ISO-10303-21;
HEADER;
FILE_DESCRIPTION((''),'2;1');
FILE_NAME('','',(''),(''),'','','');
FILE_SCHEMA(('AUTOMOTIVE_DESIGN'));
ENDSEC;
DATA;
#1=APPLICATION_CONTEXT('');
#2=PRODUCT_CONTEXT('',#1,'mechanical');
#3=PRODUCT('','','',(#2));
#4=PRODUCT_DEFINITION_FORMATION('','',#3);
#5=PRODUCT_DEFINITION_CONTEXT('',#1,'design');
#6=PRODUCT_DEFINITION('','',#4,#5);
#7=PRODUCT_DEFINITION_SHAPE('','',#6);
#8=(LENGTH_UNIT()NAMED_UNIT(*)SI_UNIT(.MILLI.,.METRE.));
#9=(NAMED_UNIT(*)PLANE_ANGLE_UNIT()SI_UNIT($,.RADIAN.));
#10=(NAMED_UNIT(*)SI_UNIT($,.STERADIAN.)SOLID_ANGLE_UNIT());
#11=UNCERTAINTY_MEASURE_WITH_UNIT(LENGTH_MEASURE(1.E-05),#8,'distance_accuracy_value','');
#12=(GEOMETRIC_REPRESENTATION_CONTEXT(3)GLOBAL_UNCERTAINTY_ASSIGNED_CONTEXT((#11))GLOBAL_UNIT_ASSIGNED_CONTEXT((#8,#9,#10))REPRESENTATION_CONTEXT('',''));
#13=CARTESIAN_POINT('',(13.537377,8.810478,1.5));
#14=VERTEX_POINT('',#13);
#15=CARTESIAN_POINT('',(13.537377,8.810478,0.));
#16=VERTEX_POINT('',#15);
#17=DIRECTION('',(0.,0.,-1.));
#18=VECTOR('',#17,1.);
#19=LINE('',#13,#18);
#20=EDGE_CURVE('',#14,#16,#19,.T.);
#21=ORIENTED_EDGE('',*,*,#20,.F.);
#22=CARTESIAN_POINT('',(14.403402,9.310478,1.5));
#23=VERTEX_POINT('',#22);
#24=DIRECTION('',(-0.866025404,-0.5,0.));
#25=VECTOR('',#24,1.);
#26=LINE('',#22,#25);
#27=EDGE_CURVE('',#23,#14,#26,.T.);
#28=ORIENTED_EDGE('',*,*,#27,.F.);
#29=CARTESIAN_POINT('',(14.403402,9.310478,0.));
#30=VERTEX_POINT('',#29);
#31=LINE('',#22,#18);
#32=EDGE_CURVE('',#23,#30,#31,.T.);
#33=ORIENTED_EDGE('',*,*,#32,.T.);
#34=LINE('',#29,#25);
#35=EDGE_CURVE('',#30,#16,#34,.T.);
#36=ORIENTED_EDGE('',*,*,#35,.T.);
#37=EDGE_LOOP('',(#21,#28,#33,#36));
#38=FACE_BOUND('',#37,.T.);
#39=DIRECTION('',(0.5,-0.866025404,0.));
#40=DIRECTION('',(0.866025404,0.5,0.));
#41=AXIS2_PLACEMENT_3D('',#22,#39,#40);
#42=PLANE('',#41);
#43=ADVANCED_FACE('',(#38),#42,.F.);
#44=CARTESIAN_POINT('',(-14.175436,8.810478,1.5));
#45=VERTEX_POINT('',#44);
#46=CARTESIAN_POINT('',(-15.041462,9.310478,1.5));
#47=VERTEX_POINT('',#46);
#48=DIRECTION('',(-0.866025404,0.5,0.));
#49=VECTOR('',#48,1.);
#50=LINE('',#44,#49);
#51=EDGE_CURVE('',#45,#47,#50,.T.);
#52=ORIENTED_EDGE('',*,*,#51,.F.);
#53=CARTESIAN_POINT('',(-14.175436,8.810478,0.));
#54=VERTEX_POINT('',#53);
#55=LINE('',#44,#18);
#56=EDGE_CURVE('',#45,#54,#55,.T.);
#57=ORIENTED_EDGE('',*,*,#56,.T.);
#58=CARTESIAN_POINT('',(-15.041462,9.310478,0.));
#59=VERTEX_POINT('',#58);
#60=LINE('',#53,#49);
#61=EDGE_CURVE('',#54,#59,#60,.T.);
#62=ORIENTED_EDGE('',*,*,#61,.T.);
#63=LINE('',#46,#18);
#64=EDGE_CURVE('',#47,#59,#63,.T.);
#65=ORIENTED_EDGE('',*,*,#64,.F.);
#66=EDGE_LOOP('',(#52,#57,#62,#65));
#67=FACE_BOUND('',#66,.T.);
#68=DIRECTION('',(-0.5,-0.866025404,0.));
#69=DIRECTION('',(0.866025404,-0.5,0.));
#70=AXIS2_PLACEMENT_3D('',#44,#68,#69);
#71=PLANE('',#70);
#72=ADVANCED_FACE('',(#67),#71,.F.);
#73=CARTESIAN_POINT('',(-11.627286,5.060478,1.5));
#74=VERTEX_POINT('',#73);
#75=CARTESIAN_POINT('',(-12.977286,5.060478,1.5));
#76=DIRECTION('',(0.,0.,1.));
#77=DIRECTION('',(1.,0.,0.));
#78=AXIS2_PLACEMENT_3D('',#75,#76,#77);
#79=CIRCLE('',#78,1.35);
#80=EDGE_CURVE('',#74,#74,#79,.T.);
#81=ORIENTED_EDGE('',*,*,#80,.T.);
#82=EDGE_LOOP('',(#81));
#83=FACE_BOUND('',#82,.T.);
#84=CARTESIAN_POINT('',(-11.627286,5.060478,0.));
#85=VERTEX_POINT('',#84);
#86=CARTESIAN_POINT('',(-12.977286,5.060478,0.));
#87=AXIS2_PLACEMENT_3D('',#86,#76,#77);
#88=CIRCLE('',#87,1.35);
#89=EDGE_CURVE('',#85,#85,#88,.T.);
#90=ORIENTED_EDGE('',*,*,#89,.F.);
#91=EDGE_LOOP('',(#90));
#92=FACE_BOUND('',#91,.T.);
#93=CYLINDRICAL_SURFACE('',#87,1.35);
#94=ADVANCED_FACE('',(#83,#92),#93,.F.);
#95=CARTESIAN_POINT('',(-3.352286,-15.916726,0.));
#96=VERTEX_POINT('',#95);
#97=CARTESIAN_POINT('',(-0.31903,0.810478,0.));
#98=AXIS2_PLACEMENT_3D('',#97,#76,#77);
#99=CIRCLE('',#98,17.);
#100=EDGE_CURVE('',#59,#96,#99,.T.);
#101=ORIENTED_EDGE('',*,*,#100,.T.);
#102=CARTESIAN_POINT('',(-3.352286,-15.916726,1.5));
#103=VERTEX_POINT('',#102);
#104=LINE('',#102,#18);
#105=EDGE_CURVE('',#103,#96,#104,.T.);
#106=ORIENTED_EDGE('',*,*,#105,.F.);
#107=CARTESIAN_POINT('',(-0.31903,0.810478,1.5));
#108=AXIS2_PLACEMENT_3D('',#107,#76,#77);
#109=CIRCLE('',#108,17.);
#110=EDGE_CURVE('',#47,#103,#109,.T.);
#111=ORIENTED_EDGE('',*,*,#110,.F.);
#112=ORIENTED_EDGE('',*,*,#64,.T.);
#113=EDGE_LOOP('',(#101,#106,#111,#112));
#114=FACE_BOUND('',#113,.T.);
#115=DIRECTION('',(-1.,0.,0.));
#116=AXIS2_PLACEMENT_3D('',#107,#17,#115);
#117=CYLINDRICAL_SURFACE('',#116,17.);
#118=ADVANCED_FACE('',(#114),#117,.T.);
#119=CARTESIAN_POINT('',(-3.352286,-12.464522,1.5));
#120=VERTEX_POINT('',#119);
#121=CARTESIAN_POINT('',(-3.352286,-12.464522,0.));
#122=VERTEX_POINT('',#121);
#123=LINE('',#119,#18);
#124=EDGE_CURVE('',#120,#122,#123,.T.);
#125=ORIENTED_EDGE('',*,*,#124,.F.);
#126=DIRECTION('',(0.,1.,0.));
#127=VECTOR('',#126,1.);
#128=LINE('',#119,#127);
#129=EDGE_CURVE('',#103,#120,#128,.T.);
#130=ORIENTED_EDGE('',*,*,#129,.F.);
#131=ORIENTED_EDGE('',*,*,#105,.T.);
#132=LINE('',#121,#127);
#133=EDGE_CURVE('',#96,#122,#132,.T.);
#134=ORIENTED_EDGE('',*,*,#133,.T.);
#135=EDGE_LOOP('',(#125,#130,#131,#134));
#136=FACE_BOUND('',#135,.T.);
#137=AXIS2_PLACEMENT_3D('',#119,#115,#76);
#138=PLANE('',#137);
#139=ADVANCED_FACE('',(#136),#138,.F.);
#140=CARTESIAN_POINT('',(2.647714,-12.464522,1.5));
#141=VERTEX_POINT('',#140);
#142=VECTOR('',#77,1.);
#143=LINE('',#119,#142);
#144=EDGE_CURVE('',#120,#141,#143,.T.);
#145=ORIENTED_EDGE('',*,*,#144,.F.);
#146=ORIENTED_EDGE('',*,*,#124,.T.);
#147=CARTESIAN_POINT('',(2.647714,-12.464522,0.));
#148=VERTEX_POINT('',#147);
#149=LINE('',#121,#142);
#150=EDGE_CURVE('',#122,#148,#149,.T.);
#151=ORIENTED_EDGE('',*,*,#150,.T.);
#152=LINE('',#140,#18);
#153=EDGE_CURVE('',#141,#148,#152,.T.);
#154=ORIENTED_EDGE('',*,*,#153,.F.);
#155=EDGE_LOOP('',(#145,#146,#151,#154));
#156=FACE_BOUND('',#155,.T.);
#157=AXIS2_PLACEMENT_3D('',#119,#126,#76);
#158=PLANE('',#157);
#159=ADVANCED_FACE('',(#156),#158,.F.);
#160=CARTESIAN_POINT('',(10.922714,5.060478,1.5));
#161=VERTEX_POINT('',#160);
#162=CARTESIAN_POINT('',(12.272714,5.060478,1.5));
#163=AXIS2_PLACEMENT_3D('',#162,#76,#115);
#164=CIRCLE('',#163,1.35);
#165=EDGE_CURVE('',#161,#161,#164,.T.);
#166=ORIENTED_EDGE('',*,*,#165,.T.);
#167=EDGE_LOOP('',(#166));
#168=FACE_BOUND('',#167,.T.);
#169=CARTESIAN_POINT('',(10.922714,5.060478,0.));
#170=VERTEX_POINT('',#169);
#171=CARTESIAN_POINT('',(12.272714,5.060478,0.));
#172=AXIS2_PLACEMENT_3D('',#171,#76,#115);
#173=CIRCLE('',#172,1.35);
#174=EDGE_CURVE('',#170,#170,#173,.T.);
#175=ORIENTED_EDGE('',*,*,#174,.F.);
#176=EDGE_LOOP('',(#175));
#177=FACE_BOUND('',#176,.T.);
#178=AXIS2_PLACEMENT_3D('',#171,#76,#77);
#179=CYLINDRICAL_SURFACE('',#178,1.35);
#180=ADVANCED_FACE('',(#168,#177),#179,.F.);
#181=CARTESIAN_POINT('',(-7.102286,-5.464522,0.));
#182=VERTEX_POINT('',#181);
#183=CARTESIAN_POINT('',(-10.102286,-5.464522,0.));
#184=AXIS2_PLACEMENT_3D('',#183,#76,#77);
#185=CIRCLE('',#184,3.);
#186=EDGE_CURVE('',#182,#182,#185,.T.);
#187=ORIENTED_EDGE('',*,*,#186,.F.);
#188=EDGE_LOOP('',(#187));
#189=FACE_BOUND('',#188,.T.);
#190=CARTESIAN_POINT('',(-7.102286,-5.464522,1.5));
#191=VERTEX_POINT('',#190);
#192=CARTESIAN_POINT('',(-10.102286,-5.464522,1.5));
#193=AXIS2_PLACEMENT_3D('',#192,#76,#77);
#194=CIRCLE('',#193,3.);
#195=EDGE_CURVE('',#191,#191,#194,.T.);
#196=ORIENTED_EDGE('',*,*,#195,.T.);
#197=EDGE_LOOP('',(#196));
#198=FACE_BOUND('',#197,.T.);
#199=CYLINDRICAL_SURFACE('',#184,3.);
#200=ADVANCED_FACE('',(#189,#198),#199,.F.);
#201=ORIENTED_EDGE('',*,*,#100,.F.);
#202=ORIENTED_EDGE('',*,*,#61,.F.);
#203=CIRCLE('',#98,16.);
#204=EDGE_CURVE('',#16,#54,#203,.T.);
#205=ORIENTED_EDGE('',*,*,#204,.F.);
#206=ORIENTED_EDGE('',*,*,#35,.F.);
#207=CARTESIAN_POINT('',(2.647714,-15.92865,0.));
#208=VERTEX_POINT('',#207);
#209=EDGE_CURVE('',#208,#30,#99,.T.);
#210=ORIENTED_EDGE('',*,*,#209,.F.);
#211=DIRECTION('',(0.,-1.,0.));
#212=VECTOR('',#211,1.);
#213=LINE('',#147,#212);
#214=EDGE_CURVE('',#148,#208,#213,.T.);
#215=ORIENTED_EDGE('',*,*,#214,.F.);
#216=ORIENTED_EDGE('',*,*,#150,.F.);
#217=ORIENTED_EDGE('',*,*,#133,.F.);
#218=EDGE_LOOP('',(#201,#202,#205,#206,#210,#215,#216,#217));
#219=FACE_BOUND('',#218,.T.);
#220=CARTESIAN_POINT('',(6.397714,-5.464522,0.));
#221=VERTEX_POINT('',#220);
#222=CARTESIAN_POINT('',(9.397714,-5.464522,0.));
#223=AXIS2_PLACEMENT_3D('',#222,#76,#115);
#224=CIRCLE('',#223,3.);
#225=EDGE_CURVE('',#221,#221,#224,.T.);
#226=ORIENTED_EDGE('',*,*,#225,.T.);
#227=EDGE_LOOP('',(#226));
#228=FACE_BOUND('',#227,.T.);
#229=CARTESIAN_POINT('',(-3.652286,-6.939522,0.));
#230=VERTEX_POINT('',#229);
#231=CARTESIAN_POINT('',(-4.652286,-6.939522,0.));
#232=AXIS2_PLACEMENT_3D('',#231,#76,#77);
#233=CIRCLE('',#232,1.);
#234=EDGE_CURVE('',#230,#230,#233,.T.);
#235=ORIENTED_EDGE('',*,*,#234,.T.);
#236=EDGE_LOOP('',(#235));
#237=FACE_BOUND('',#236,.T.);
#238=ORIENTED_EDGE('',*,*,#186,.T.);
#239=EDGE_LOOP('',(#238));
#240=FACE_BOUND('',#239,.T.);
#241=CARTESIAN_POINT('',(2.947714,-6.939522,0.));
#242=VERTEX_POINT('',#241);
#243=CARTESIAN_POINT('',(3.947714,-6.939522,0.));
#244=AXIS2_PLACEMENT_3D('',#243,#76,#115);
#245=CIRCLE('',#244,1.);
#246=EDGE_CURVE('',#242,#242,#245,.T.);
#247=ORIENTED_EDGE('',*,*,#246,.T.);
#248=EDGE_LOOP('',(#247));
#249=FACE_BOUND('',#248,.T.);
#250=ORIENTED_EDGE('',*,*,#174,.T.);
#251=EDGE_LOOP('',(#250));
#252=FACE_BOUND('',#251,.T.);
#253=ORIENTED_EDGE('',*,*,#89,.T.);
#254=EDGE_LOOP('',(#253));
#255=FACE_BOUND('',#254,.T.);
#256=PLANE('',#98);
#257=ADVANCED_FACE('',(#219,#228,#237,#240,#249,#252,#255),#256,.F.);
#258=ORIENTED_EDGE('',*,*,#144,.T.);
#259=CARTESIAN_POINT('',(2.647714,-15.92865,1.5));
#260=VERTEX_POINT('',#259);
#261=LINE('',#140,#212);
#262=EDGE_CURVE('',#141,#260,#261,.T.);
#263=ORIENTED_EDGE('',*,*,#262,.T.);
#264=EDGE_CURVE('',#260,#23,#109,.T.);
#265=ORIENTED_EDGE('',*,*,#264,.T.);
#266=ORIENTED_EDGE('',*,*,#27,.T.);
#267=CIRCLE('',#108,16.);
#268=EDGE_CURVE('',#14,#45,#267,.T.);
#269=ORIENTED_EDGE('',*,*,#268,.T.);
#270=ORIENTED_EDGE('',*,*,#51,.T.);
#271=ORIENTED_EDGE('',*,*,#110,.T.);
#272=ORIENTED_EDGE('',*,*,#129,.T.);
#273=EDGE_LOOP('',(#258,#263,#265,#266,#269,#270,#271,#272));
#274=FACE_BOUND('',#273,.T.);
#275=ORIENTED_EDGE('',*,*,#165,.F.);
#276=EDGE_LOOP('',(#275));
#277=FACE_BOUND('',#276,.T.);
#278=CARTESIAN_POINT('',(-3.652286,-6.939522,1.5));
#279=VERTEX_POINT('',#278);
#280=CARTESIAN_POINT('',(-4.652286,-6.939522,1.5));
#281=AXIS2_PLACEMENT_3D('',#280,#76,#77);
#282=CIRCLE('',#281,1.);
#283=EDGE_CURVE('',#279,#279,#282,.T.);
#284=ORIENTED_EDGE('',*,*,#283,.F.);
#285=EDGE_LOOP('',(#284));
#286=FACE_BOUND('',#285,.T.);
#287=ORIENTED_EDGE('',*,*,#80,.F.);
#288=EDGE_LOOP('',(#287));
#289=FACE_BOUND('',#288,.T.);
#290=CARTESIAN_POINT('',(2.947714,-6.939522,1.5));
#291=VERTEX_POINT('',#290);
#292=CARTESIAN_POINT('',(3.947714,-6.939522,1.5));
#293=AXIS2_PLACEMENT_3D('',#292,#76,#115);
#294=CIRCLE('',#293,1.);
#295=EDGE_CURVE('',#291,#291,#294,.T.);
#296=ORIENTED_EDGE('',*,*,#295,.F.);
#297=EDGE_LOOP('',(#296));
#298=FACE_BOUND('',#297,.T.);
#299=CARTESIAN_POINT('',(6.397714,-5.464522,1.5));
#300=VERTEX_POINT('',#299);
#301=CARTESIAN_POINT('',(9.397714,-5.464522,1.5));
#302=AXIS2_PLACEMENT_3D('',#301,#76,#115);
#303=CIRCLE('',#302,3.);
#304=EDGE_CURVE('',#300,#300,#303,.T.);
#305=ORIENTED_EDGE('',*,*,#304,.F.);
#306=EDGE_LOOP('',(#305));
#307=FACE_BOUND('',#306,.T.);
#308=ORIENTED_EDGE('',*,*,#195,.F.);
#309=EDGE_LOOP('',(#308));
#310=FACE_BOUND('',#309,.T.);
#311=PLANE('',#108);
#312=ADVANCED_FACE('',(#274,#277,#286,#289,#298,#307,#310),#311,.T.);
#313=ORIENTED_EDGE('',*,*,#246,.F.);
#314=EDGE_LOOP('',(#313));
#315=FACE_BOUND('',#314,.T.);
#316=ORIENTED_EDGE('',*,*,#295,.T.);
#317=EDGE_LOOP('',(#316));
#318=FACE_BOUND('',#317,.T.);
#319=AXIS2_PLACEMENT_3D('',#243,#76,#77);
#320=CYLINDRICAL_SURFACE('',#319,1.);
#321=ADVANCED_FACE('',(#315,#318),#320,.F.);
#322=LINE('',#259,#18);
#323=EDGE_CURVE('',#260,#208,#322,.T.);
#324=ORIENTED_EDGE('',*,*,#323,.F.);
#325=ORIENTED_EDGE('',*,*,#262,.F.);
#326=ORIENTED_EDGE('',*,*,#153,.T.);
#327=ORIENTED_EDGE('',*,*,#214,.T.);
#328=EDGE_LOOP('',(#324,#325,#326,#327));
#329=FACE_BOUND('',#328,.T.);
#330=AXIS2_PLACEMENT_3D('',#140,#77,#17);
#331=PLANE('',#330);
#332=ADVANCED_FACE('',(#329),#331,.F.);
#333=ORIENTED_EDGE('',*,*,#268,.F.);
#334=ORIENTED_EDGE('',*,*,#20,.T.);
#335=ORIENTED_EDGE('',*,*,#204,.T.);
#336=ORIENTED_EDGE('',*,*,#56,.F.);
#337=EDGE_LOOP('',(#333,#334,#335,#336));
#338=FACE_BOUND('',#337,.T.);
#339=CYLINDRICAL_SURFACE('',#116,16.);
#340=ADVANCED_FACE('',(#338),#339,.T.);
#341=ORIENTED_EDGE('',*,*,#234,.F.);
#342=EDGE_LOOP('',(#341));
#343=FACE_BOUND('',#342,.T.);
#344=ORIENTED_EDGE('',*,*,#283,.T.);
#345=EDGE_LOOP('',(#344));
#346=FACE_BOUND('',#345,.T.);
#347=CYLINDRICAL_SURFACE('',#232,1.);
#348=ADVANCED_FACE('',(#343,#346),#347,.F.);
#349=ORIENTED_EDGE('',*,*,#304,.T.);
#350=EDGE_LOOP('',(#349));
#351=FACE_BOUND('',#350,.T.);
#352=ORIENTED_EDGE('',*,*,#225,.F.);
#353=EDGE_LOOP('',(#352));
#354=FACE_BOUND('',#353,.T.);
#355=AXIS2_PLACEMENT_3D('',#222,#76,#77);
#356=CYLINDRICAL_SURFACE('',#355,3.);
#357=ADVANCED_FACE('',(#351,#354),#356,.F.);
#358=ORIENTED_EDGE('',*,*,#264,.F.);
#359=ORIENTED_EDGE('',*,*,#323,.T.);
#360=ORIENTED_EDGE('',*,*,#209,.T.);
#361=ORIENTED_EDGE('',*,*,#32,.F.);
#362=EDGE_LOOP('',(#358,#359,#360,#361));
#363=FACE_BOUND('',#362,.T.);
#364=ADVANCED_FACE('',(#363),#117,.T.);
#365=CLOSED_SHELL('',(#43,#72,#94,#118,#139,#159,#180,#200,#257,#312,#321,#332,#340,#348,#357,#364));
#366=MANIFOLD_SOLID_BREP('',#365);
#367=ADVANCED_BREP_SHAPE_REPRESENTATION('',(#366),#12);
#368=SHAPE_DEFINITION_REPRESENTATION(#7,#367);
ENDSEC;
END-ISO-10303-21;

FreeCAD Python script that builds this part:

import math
import FreeCAD as App
import Part
import Sketcher

V = App.Vector
Q = App.Units.Quantity

doc = App.newDocument("Part")
params = doc.addObject("Spreadsheet::Sheet", "Params")
for row, (alias, value) in enumerate([
    ("sketch1_radius", "17 mm"),
    ("sketch1_radius2", "16 mm"),
    ("sketch1_width", "6 mm"),
    ("pad1_length", "1.5 mm"),
    ("sketch2_diameter", "6 mm"),
    ("sketch2_diameter2", "2 mm"),
    ("sketch2_diameter3", "2.7 mm"),
], start=1):
    params.set(f"A{row}", alias)
    params.set(f"B{row}", "=" + value)
    params.setAlias(f"B{row}", alias)

body = doc.addObject("PartDesign::Body", "Body")

# Sketch on XY plane
sketch1 = doc.addObject("Sketcher::SketchObject", "Sketch")
body.addObject(sketch1)
sketch1.AttachmentSupport = (doc.XY_Plane, [""])
sketch1.MapMode = "FlatFace"
sketch1.addGeometry([
    Part.LineSegment(V(-3.352286, -12.464522, 0), V(2.647714, -12.464522, 0)),  # 0
    Part.LineSegment(V(2.647714, -12.464522, 0), V(2.647714, -15.92865, 0)),  # 1
    Part.ArcOfCircle(Part.Circle(V(-0.31903, 0.810478, 0), V(0, 0, 1), 17), math.radians(-79.949602), math.radians(30)),  # 2
    Part.LineSegment(V(14.403402, 9.310478, 0), V(13.537377, 8.810478, 0)),  # 3
    Part.ArcOfCircle(Part.Circle(V(-0.31903, 0.810478, 0), V(0, 0, 1), 16), math.radians(30), math.radians(150)),  # 4
    Part.LineSegment(V(-14.175436, 8.810478, 0), V(-15.041462, 9.310478, 0)),  # 5
    Part.ArcOfCircle(Part.Circle(V(-0.31903, 0.810478, 0), V(0, 0, 1), 17), math.radians(150), math.radians(259.72186)),  # 6
    Part.LineSegment(V(-3.352286, -15.916726, 0), V(-3.352286, -12.464522, 0)),  # 7
], False)
sketch1.addConstraint([
    Sketcher.Constraint("Coincident", 0, 2, 1, 1),
    Sketcher.Constraint("Coincident", 1, 2, 2, 1),
    Sketcher.Constraint("Coincident", 2, 2, 3, 1),
    Sketcher.Constraint("Coincident", 3, 2, 4, 1),
    Sketcher.Constraint("Coincident", 4, 2, 5, 1),
    Sketcher.Constraint("Coincident", 5, 2, 6, 1),
    Sketcher.Constraint("Coincident", 6, 2, 7, 1),
    Sketcher.Constraint("Coincident", 7, 2, 0, 1),
    Sketcher.Constraint("Horizontal", 0),
    Sketcher.Constraint("Vertical", 1),
    Sketcher.Constraint("Vertical", 7),
    Sketcher.Constraint("Coincident", 4, 3, 2, 3),
    Sketcher.Constraint("Coincident", 6, 3, 2, 3),
    Sketcher.Constraint("Equal", 2, 6),
    Sketcher.Constraint("Horizontal", 3, 2, 4, 2),
    Sketcher.Constraint("Horizontal", 2, 2, 5, 2),
    Sketcher.Constraint("Radius", 2, Q("17 mm")),
    Sketcher.Constraint("Radius", 4, Q("16 mm")),
    Sketcher.Constraint("DistanceX", 0, 1, 0, 2, Q("6 mm")),
    Sketcher.Constraint("Angle", 3, Q("-150 deg")),
    Sketcher.Constraint("DistanceY", 2, 3, 3, 2, Q("8 mm")),
    Sketcher.Constraint("DistanceY", 0, 2, 2, 3, Q("13.275 mm")),
    Sketcher.Constraint("DistanceY", 1, 2, 1, 1, Q("3.464129 mm")),
    Sketcher.Constraint("DistanceX", -1, 1, 2, 2, Q("14.403402 mm")),
    Sketcher.Constraint("DistanceY", -1, 1, 2, 3, Q("0.810478 mm")),
])
sketch1.setExpression("Constraints[16]", "Params.sketch1_radius")
sketch1.setExpression("Constraints[17]", "Params.sketch1_radius2")
sketch1.setExpression("Constraints[18]", "Params.sketch1_width")
pad1 = doc.addObject("PartDesign::Pad", "Pad")
body.addObject(pad1)
pad1.Profile = sketch1
pad1.setExpression("Length", "Params.pad1_length")

# Sketch on XY plane
sketch2 = doc.addObject("Sketcher::SketchObject", "Sketch001")
body.addObject(sketch2)
sketch2.AttachmentSupport = (doc.XY_Plane, [""])
sketch2.MapMode = "FlatFace"
sketch2.AttachmentOffset = App.Placement(V(0, 0, 1.5), App.Rotation())
sketch2.addGeometry([
    Part.Circle(V(-10.102286, -5.464522, 0), V(0, 0, 1), 3),  # 0
    Part.Circle(V(9.397714, -5.464522, 0), V(0, 0, 1), 3),  # 1
    Part.Circle(V(-12.977286, 5.060478, 0), V(0, 0, 1), 1.35),  # 2
    Part.Circle(V(12.272714, 5.060478, 0), V(0, 0, 1), 1.35),  # 3
    Part.Circle(V(-4.652286, -6.939522, 0), V(0, 0, 1), 1),  # 4
    Part.Circle(V(3.947714, -6.939522, 0), V(0, 0, 1), 1),  # 5
], False)
sketch2.addConstraint([
    Sketcher.Constraint("Equal", 0, 1),
    Sketcher.Constraint("Equal", 2, 3),
    Sketcher.Constraint("Equal", 4, 5),
    Sketcher.Constraint("Horizontal", 0, 3, 1, 3),
    Sketcher.Constraint("Horizontal", 2, 3, 3, 3),
    Sketcher.Constraint("Horizontal", 4, 3, 5, 3),
    Sketcher.Constraint("Diameter", 0, Q("6 mm")),
    Sketcher.Constraint("Diameter", 4, Q("2 mm")),
    Sketcher.Constraint("Diameter", 2, Q("2.7 mm")),
    Sketcher.Constraint("DistanceY", 4, 3, 2, 3, Q("12 mm")),
    Sketcher.Constraint("DistanceX", 0, 3, 1, 3, Q("19.5 mm")),
    Sketcher.Constraint("DistanceX", 4, 3, 5, 3, Q("8.6 mm")),
    Sketcher.Constraint("DistanceX", 2, 3, 3, 3, Q("25.25 mm")),
    Sketcher.Constraint("DistanceX", 0, 3, 4, 3, Q("5.45 mm")),
    Sketcher.Constraint("DistanceX", 2, 3, 0, 3, Q("2.875 mm")),
    Sketcher.Constraint("DistanceY", 0, 3, 2, 3, Q("10.525 mm")),
    Sketcher.Constraint("DistanceY", 0, 3, -1, 1, Q("5.464522 mm")),
    Sketcher.Constraint("DistanceX", 0, 3, -1, 1, Q("10.102286 mm")),
])
sketch2.setExpression("Constraints[6]", "Params.sketch2_diameter")
sketch2.setExpression("Constraints[7]", "Params.sketch2_diameter2")
sketch2.setExpression("Constraints[8]", "Params.sketch2_diameter3")
pocket1 = doc.addObject("PartDesign::Pocket", "Pocket")
body.addObject(pocket1)
pocket1.Profile = sketch2
pocket1.Type = "ThroughAll"

doc.recompute()
